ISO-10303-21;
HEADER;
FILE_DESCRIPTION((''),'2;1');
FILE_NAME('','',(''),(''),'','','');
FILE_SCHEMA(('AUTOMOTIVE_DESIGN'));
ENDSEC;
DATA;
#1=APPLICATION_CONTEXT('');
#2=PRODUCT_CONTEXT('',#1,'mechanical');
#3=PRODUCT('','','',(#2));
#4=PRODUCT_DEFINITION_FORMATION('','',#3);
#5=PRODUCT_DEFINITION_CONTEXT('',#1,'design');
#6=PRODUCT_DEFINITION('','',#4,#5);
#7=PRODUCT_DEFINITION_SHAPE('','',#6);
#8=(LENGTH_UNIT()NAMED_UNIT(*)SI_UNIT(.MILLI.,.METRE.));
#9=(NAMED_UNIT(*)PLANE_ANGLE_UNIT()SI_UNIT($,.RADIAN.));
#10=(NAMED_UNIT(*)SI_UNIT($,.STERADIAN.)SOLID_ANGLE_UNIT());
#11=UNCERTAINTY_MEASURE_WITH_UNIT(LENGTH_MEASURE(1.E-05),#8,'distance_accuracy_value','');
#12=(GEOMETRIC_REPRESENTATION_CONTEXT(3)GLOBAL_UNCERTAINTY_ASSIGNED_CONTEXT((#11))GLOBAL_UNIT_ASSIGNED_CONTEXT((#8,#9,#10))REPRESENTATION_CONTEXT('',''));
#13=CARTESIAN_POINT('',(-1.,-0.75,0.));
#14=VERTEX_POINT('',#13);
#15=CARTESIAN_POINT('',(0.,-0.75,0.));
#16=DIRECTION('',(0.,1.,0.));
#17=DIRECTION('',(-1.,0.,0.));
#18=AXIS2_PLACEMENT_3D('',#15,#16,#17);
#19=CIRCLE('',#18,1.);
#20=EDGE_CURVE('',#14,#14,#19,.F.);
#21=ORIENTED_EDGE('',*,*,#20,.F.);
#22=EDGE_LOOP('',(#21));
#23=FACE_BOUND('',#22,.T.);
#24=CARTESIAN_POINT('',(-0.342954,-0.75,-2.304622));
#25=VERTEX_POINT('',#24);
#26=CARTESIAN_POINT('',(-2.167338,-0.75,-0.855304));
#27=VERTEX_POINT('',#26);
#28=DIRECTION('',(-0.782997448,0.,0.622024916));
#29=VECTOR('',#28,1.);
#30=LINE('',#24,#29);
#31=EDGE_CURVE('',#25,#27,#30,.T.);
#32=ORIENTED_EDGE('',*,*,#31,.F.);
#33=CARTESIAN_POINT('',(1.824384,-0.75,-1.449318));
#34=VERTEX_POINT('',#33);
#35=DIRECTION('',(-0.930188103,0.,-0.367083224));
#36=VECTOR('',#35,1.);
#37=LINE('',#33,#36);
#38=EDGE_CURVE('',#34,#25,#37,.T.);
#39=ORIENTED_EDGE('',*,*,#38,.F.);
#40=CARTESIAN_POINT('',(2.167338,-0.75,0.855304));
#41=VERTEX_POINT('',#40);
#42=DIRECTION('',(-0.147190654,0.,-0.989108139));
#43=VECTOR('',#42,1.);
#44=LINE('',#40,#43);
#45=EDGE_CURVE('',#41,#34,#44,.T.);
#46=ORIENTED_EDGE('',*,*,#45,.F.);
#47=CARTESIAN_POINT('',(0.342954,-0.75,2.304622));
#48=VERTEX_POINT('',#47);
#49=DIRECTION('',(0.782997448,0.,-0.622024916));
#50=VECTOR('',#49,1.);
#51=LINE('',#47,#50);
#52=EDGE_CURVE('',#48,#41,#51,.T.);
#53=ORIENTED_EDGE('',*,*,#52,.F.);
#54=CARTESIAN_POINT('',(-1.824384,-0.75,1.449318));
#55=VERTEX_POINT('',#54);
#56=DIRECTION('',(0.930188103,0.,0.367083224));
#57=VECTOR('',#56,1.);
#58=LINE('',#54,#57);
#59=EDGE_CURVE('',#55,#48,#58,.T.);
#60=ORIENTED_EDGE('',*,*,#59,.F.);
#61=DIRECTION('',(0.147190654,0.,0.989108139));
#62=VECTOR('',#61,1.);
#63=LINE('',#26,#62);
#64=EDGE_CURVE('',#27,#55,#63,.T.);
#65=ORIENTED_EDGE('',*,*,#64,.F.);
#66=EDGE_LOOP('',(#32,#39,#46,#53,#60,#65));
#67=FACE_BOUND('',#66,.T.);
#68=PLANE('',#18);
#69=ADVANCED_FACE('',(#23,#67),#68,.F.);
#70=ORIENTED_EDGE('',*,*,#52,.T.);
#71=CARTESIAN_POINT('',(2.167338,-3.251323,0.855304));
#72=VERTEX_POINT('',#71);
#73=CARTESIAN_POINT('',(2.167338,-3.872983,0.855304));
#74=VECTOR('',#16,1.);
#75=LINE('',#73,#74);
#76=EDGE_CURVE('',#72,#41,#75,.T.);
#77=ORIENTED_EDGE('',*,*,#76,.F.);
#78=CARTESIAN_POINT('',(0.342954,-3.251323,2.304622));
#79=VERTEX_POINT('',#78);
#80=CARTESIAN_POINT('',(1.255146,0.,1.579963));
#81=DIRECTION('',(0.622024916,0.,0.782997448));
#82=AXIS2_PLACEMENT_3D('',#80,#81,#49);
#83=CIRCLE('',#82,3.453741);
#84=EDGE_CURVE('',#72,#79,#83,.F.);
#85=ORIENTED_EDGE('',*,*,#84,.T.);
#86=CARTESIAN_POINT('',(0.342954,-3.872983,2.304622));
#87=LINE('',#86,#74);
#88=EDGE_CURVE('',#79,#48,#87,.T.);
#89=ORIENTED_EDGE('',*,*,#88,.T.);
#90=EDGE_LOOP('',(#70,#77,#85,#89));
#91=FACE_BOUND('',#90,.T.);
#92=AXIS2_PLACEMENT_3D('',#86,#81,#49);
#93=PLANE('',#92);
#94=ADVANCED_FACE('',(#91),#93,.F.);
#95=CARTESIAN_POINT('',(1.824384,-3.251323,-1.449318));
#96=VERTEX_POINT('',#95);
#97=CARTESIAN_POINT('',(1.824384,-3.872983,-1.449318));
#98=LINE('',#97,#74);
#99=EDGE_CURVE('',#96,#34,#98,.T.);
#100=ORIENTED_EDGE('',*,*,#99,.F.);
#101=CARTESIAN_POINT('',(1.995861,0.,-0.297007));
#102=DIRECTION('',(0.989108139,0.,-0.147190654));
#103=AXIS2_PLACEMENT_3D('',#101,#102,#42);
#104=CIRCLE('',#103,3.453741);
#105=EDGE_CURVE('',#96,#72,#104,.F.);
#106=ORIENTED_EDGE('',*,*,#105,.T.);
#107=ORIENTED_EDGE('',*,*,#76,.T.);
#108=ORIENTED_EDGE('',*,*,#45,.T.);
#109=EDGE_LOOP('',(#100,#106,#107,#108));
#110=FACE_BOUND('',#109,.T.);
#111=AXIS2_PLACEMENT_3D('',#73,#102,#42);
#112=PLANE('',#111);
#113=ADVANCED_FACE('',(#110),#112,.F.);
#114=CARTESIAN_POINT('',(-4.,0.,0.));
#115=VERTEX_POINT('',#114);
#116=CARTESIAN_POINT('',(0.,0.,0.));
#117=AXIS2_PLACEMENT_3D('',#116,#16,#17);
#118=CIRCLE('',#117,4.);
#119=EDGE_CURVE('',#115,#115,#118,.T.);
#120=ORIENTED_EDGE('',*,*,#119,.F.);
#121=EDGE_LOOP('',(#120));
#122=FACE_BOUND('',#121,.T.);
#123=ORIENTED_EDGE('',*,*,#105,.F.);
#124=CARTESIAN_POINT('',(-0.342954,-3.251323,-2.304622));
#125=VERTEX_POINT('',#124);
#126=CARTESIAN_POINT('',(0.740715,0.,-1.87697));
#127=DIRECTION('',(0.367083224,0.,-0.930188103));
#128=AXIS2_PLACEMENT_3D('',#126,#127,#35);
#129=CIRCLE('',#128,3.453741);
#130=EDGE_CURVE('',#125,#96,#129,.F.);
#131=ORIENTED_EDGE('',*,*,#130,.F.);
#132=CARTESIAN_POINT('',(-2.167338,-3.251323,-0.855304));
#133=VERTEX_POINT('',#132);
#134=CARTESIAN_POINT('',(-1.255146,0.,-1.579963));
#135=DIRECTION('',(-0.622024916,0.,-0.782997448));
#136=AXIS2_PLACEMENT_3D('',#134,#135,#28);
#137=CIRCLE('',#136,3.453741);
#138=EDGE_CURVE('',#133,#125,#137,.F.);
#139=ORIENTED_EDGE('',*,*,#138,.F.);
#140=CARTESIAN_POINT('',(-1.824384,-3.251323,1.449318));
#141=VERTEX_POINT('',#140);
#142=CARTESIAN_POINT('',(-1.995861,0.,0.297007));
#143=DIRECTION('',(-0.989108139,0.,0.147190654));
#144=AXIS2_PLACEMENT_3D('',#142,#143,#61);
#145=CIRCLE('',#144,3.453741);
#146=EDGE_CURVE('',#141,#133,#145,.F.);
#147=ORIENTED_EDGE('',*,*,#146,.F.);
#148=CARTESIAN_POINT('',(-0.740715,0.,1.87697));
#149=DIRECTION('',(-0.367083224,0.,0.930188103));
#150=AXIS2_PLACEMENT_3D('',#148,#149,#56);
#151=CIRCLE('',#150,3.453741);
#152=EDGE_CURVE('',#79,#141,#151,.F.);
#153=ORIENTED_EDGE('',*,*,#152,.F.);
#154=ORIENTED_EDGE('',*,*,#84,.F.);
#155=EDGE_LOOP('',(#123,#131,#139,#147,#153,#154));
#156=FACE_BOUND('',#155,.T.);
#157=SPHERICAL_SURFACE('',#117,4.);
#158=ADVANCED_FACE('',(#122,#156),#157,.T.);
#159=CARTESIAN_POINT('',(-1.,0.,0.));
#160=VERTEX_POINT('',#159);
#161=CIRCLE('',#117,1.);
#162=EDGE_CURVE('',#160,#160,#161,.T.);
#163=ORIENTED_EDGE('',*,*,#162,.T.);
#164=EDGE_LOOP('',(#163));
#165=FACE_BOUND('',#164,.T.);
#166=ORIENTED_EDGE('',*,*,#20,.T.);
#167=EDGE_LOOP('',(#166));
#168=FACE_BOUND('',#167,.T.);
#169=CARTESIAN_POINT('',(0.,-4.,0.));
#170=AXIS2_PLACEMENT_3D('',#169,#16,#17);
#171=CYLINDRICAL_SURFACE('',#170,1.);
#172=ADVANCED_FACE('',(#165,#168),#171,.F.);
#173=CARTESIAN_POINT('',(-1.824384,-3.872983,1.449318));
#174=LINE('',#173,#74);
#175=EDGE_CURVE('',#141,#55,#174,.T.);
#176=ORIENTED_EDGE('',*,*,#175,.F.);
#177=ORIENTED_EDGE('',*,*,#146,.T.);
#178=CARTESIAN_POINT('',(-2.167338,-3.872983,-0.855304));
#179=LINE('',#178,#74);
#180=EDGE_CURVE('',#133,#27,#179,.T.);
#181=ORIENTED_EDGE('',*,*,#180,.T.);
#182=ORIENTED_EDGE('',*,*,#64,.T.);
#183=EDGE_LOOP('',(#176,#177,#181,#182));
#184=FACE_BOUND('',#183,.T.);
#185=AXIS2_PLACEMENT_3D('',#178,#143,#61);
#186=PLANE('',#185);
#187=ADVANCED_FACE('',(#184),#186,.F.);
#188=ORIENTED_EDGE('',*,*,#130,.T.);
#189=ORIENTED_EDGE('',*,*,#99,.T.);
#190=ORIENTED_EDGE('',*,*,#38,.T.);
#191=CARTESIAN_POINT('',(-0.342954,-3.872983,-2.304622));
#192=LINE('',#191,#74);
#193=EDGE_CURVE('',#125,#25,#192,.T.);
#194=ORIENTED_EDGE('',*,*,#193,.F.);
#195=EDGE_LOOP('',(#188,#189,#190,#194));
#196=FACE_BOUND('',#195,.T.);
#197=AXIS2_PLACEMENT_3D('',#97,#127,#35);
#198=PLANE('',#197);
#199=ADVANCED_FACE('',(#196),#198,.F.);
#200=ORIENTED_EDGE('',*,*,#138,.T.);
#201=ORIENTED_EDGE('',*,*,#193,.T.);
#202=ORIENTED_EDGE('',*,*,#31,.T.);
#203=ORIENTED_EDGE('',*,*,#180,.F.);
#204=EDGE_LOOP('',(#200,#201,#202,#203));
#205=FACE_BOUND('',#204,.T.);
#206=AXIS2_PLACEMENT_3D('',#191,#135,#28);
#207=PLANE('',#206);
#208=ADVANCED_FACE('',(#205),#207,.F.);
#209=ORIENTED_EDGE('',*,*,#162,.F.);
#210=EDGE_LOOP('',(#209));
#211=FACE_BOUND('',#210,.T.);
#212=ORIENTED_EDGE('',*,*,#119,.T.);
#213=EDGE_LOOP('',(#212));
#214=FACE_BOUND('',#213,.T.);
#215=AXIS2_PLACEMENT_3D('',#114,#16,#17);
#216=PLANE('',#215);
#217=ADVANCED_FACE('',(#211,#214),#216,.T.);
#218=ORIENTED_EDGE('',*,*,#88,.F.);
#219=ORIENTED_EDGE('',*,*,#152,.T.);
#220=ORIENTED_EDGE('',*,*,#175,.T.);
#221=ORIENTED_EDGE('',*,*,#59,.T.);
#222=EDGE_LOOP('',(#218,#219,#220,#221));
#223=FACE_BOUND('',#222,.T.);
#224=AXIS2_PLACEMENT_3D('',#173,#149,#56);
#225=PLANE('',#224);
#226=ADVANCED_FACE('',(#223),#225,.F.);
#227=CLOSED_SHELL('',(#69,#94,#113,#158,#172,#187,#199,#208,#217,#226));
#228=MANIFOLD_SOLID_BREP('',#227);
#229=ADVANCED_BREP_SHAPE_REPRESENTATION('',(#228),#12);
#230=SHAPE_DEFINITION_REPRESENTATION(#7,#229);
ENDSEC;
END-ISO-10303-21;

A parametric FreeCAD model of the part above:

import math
import FreeCAD as App
import Part
import Sketcher


def add_polygon(sketch, points):
    """Adds a closed chain of lines whose ends are joined by coincident constraints."""
    first, n = sketch.GeometryCount, len(points)
    for a, b in zip(points, points[1:] + points[:1]):
        sketch.addGeometry(Part.LineSegment(App.Vector(*a, 0), App.Vector(*b, 0)), False)
    for i in range(n):
        sketch.addConstraint(Sketcher.Constraint("Coincident", first + i, 2, first + (i + 1) % n, 1))

doc = App.newDocument("Part")
params = doc.addObject("Spreadsheet::Sheet", "Params")
for row, (alias, value) in enumerate([
    ("sketch1_radius", "4 mm"),
    ("revolution_angle", "360 deg"),
    ("sketch2_diameter", "2 mm"),
    ("sketch3_length", "2.33 mm"),
    ("pocket2_length", "2.25 mm"),
    ("pocket2_length2", "1.872983 mm"),
], start=1):
    params.set(f"A{row}", alias)
    params.set(f"B{row}", "=" + value)
    params.setAlias(f"B{row}", alias)

body = doc.addObject("PartDesign::Body", "Body")

sketch1 = body.newObject("Sketcher::SketchObject", "Sketch")
sketch1.AttachmentSupport = (doc.getObject("XY_Plane"), [""])
sketch1.MapMode = "FlatFace"
sketch1.addGeometry(Part.LineSegment(App.Vector(0, 0, 0), App.Vector(-4, 0, 0)), False)
sketch1.addGeometry(Part.ArcOfCircle(Part.Circle(App.Vector(0, 0, 0), App.Vector(0, 0, 1), 4), math.radians(180), math.radians(270)), False)
sketch1.addGeometry(Part.LineSegment(App.Vector(0, -4, 0), App.Vector(0, 0, 0)), False)
sketch1.addConstraint(Sketcher.Constraint("Coincident", 0, 2, 1, 1))
sketch1.addConstraint(Sketcher.Constraint("Coincident", 1, 2, 2, 1))
sketch1.addConstraint(Sketcher.Constraint("Coincident", 2, 2, 0, 1))
sketch1.addConstraint(Sketcher.Constraint("Horizontal", 0))
sketch1.addConstraint(Sketcher.Constraint("Vertical", 2))
sketch1.addConstraint(Sketcher.Constraint("Coincident", 1, 3, -1, 1))
sketch1.addConstraint(Sketcher.Constraint("Coincident", 2, 2, -1, 1))
sketch1.addConstraint(Sketcher.Constraint("Radius", 1, 4.0))
sketch1.setExpression("Constraints[7]", "Params.sketch1_radius")
revolution = body.newObject("PartDesign::Revolution", "Revolution")
revolution.Profile = sketch1
revolution.ReferenceAxis = (sketch1, ["V_Axis"])
revolution.setExpression("Angle", "Params.revolution_angle")

sketch2 = body.newObject("Sketcher::SketchObject", "Sketch001")
sketch2.AttachmentSupport = (doc.getObject("XZ_Plane"), [""])
sketch2.MapMode = "FlatFace"
sketch2.addGeometry(Part.Circle(App.Vector(0, 0, 0), App.Vector(0, 0, 1), 1), False)
sketch2.addConstraint(Sketcher.Constraint("Coincident", 0, 3, -1, 1))
sketch2.addConstraint(Sketcher.Constraint("Diameter", 0, 2.0))
sketch2.setExpression("Constraints[1]", "Params.sketch2_diameter")
pocket1 = body.newObject("PartDesign::Pocket", "Pocket")
pocket1.Profile = sketch2
pocket1.Type = "ThroughAll"
pocket1.Reversed = True

sketch3 = body.newObject("Sketcher::SketchObject", "Sketch002")
sketch3.AttachmentSupport = (doc.getObject("XZ_Plane"), [""])
sketch3.MapMode = "FlatFace"
sketch3.AttachmentOffset = App.Placement(App.Vector(0, 0, 3), App.Rotation())
add_polygon(sketch3, [(2.2, 0.9), (1.8, -1.4), (-0.3, -2.3), (-2.2, -0.9), (-1.8, 1.4), (0.3, 2.3)])
sketch3.addConstraint(Sketcher.Constraint("Symmetric", 0, 2, 3, 2, -1, 1))
sketch3.addConstraint(Sketcher.Constraint("Symmetric", 1, 2, 4, 2, -1, 1))
sketch3.addConstraint(Sketcher.Constraint("Symmetric", 2, 2, 5, 2, -1, 1))
sketch3.addConstraint(Sketcher.Constraint("Equal", 0, 1))
sketch3.addConstraint(Sketcher.Constraint("Equal", 1, 2))
sketch3.addConstraint(Sketcher.Constraint("Distance", 0, 2.33))
sketch3.addConstraint(Sketcher.Constraint("DistanceY", 0, 2, -1, 1, 1.449318))
sketch3.addConstraint(Sketcher.Constraint("DistanceY", 1, 2, -1, 1, 2.304622))
sketch3.addConstraint(Sketcher.Constraint("DistanceX", 2, 2, -1, 1, 2.167338))
sketch3.setExpression("Constraints[11]", "Params.sketch3_length")
pocket2 = body.newObject("PartDesign::Pocket", "Pocket001")
pocket2.Profile = sketch3
pocket2.Type = "TwoLengths"
pocket2.setExpression("Length", "Params.pocket2_length")
pocket2.setExpression("Length2", "Params.pocket2_length2")

doc.recompute()
